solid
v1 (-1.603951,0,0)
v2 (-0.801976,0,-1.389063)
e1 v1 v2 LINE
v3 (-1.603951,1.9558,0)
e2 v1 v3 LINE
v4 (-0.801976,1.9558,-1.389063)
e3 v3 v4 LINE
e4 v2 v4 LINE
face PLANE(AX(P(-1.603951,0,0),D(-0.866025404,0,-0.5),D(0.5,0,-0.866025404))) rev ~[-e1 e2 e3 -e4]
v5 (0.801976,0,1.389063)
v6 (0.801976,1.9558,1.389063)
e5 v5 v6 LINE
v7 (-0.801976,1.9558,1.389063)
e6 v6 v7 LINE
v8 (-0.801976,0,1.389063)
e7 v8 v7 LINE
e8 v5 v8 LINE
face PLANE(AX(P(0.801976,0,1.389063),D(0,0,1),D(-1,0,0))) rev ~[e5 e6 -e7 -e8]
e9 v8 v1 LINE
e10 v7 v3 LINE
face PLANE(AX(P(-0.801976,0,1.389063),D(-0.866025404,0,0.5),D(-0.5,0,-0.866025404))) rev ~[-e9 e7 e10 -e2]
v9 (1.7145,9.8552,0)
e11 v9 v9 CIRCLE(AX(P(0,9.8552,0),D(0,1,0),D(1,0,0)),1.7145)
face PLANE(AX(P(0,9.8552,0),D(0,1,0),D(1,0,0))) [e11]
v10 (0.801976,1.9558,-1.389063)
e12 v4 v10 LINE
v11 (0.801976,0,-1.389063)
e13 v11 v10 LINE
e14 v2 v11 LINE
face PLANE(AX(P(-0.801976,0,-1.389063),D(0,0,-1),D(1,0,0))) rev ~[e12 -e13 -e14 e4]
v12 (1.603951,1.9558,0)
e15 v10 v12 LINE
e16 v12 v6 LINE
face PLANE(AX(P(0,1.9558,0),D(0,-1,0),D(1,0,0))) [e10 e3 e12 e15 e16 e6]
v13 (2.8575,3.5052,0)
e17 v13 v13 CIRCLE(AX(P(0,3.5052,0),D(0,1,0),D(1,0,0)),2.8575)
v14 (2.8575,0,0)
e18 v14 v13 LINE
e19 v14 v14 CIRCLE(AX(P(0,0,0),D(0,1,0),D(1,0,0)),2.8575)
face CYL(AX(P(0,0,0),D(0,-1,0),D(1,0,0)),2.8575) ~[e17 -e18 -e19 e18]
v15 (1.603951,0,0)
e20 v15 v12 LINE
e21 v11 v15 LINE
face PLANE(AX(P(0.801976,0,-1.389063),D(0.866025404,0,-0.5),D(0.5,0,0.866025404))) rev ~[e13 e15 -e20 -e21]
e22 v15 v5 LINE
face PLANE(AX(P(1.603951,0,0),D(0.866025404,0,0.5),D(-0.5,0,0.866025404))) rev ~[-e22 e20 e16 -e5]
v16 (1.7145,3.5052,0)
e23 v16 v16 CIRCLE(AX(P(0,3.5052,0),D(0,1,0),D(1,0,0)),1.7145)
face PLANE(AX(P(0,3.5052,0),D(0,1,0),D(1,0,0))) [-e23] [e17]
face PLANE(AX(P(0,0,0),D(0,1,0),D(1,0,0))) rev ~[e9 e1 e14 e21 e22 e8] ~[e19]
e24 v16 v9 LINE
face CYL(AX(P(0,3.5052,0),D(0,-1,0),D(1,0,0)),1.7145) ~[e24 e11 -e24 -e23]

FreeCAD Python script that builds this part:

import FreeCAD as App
import Part
import Sketcher
from FreeCAD import Vector
Q = App.Units.Quantity

doc = App.newDocument("Part")
body = doc.addObject("PartDesign::Body", "Body")

# Sketch on XZ plane
sketch1 = doc.addObject("Sketcher::SketchObject", "Sketch")
body.addObject(sketch1)
sketch1.AttachmentSupport = (doc.XZ_Plane, [""])
sketch1.MapMode = "FlatFace"
sketch1.addGeometry(Part.Circle(Vector(0, 0, 0), Vector(0, 0, 1), 2.9), False)
sketch1.addConstraint([
    Sketcher.Constraint("Coincident", 0, 3, -1, 1),
    Sketcher.Constraint("Diameter", 0, Q("0.225 in")),
])
pad1 = doc.addObject("PartDesign::Pad", "Pad")
body.addObject(pad1)
pad1.Profile = sketch1
pad1.Length = Q("0.138 in")
pad1.Reversed = True

# Sketch on XZ plane
sketch2 = doc.addObject("Sketcher::SketchObject", "Sketch001")
body.addObject(sketch2)
sketch2.AttachmentSupport = (doc.XZ_Plane, [""])
sketch2.MapMode = "FlatFace"
sketch2.addGeometry([
    Part.LineSegment(Vector(1.6, 0, 0), Vector(0.8, 1.4, 0)),  # 0
    Part.LineSegment(Vector(0.8, 1.4, 0), Vector(-0.8, 1.4, 0)),  # 1
    Part.LineSegment(Vector(-0.8, 1.4, 0), Vector(-1.6, 0, 0)),  # 2
    Part.LineSegment(Vector(-1.6, 0, 0), Vector(-0.8, -1.4, 0)),  # 3
    Part.LineSegment(Vector(-0.8, -1.4, 0), Vector(0.8, -1.4, 0)),  # 4
    Part.LineSegment(Vector(0.8, -1.4, 0), Vector(1.6, 0, 0)),  # 5
], False)
sketch2.addConstraint([
    Sketcher.Constraint("Coincident", 0, 2, 1, 1),
    Sketcher.Constraint("Coincident", 1, 2, 2, 1),
    Sketcher.Constraint("Coincident", 2, 2, 3, 1),
    Sketcher.Constraint("Coincident", 3, 2, 4, 1),
    Sketcher.Constraint("Coincident", 4, 2, 5, 1),
    Sketcher.Constraint("Coincident", 5, 2, 0, 1),
    Sketcher.Constraint("Horizontal", 1),
    Sketcher.Constraint("Horizontal", 4),
    Sketcher.Constraint("Symmetric", 0, 2, 3, 2, -1, 1),
    Sketcher.Constraint("Symmetric", 2, 2, 5, 2, -1, 1),
    Sketcher.Constraint("PointOnObject", 2, 2, -1),
    Sketcher.Constraint("Parallel", 2, 5),
    Sketcher.Constraint("Vertical", 1, 2, 3, 2),
    Sketcher.Constraint("Angle", 0, Q("120 deg")),
    Sketcher.Constraint("DistanceY", 3, 2, 1, 2, Q("0.109375 in")),
    Sketcher.Constraint("DistanceX", 1, 2, 1, 1, 1.603951),
])
pocket1 = doc.addObject("PartDesign::Pocket", "Pocket")
body.addObject(pocket1)
pocket1.Profile = sketch2
pocket1.Length = Q("0.077 in")

# Sketch on XZ plane
sketch3 = doc.addObject("Sketcher::SketchObject", "Sketch002")
body.addObject(sketch3)
sketch3.AttachmentSupport = (doc.XZ_Plane, [""])
sketch3.MapMode = "FlatFace"
sketch3.AttachmentOffset = App.Placement(Vector(0, 0, -0.138 * 25.4), App.Rotation())
sketch3.addGeometry(Part.Circle(Vector(0, 0, 0), Vector(0, 0, 1), 1.7), False)
sketch3.addConstraint([
    Sketcher.Constraint("Coincident", 0, 3, -1, 1),
    Sketcher.Constraint("Diameter", 0, Q("0.135 in")),
])
pad2 = doc.addObject("PartDesign::Pad", "Pad001")
body.addObject(pad2)
pad2.Profile = sketch3
pad2.Length = Q("0.25 in")
pad2.Reversed = True

doc.recompute()
